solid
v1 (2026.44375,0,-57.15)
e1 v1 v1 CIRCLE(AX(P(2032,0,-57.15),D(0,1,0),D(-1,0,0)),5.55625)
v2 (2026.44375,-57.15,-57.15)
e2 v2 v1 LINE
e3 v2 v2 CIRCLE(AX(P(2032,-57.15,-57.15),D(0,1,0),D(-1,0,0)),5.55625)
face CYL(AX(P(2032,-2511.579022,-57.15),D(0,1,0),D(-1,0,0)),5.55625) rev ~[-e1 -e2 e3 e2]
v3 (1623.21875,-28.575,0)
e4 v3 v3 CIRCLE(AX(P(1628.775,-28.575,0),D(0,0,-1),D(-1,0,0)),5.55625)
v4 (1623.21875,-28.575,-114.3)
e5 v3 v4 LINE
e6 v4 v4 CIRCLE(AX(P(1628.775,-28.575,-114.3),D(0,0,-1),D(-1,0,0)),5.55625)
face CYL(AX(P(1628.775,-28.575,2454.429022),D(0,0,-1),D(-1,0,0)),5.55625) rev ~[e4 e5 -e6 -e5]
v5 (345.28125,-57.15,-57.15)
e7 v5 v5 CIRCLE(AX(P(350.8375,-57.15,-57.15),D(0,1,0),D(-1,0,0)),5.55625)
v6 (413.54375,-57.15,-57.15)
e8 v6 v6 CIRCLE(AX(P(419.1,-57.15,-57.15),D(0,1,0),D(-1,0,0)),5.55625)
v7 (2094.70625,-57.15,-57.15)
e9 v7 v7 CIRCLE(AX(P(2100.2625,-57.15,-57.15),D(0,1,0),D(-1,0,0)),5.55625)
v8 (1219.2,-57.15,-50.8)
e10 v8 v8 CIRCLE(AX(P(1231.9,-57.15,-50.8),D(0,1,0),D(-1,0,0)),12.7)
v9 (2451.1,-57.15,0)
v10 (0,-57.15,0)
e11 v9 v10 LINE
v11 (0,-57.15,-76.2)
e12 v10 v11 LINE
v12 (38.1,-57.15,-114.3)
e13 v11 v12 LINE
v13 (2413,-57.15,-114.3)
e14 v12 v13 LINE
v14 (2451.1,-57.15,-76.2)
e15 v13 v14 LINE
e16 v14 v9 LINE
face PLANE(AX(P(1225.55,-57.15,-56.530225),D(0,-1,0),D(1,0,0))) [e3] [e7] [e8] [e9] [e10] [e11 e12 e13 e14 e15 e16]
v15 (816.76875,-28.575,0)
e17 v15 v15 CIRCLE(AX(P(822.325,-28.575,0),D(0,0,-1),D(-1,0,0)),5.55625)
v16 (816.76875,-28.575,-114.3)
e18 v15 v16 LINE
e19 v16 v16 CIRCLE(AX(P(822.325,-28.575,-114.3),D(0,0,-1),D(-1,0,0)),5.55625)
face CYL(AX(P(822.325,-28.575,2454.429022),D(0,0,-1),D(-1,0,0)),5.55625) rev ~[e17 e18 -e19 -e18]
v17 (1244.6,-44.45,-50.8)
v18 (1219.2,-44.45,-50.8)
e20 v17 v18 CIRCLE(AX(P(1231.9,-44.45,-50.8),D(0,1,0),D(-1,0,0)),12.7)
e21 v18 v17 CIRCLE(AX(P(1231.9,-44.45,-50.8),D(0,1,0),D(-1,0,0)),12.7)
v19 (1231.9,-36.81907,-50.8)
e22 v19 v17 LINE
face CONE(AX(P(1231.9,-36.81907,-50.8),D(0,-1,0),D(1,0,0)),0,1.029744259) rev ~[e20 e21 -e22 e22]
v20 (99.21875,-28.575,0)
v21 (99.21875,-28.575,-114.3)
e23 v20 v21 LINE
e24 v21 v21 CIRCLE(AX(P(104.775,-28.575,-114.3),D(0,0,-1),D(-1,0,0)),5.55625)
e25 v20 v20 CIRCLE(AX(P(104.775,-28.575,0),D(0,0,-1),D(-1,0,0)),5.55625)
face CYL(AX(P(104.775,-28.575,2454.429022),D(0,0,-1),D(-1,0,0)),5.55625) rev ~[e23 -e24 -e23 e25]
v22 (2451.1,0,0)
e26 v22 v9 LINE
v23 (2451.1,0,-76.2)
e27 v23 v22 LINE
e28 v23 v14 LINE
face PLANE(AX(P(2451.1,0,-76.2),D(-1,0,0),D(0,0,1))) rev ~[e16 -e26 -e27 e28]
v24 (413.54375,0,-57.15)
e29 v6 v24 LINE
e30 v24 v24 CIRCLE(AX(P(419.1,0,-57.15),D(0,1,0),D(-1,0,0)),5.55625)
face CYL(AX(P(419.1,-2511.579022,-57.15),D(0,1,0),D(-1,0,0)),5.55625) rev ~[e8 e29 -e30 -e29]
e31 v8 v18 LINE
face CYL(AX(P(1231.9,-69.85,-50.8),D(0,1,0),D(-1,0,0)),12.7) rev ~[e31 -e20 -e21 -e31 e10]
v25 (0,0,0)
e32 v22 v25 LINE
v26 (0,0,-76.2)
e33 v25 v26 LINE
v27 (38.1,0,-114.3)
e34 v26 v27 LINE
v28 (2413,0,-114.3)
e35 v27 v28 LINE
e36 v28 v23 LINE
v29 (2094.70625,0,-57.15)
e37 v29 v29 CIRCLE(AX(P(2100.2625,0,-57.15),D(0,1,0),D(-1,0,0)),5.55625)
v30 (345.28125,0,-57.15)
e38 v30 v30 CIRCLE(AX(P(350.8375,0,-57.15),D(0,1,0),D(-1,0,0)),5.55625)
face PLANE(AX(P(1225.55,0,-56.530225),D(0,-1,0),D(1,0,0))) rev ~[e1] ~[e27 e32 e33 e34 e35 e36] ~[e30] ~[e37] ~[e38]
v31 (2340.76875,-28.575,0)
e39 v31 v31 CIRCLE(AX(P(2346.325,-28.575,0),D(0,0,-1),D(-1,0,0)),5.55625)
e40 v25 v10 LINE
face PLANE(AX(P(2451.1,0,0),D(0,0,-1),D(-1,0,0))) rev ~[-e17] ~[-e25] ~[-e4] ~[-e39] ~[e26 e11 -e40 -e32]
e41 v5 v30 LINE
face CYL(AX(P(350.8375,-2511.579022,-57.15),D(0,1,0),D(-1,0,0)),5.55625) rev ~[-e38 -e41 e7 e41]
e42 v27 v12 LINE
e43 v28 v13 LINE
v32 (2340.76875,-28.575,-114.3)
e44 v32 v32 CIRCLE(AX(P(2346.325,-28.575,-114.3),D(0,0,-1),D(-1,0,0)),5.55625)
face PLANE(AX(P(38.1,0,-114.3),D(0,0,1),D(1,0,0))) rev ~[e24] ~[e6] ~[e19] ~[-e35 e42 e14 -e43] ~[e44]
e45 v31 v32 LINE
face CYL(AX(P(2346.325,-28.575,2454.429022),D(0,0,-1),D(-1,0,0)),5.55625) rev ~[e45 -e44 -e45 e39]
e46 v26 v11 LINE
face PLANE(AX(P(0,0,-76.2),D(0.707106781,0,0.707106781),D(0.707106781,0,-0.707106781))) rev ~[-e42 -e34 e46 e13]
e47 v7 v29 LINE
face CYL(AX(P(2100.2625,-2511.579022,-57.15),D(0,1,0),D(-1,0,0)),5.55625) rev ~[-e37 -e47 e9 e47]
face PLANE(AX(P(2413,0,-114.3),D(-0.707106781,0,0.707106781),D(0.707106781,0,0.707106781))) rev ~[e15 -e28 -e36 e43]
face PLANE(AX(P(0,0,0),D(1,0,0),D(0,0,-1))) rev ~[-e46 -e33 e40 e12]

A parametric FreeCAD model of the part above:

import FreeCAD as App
import Part
import Sketcher

V = App.Vector
Q = App.Units.Quantity

doc = App.newDocument("Part")
body = doc.addObject("PartDesign::Body", "Body")

sketch1 = body.newObject("Sketcher::SketchObject", "Sketch")
sketch1.AttachmentSupport = (doc.getObject("XZ_Plane"), [""])
sketch1.MapMode = "FlatFace"
sketch1.addGeometry([
    Part.LineSegment(V(2451, 0, 0), V(0, 0, 0)),
    Part.LineSegment(V(0, 0, 0), V(0, -76, 0)),
    Part.LineSegment(V(0, -76, 0), V(38, -114, 0)),
    Part.LineSegment(V(38, -114, 0), V(2413, -114, 0)),
    Part.LineSegment(V(2413, -114, 0), V(2451, -76, 0)),
    Part.LineSegment(V(2451, -76, 0), V(2451, 0, 0)),
], False)
sketch1.addConstraint([
    Sketcher.Constraint("Coincident", 0, 2, 1, 1),
    Sketcher.Constraint("Coincident", 1, 2, 2, 1),
    Sketcher.Constraint("Coincident", 2, 2, 3, 1),
    Sketcher.Constraint("Coincident", 3, 2, 4, 1),
    Sketcher.Constraint("Coincident", 4, 2, 5, 1),
    Sketcher.Constraint("Coincident", 5, 2, 0, 1),
    Sketcher.Constraint("Horizontal", 0),
    Sketcher.Constraint("Vertical", 1),
    Sketcher.Constraint("Horizontal", 3),
    Sketcher.Constraint("Vertical", 5),
    Sketcher.Constraint("Coincident", 0, 2, -1, 1),
    Sketcher.Constraint("Perpendicular", 2, 4),
    Sketcher.Constraint("Horizontal", 1, 2, 4, 2),
    Sketcher.Constraint("Equal", 2, 4),
    Sketcher.Constraint("DistanceY", 1, 2, 1, 1, Q("3 in")),
    Sketcher.Constraint("DistanceX", 0, 2, 0, 1, Q("96.5 in")),
    Sketcher.Constraint("DistanceX", 3, 1, 3, 2, Q("93.5 in")),
])
pad1 = body.newObject("PartDesign::Pad", "Pad")
pad1.Profile = sketch1
pad1.Length = Q("2.25 in")

sketch2 = body.newObject("Sketcher::SketchObject", "Sketch001")
sketch2.AttachmentSupport = (doc.getObject("XY_Plane"), [""])
sketch2.MapMode = "FlatFace"
sketch2.addGeometry([
    Part.Circle(V(105, -29, 0), V(0, 0, 1), 6),
    Part.Circle(V(822, -29, 0), V(0, 0, 1), 6),
    Part.Circle(V(1629, -29, 0), V(0, 0, 1), 6),
    Part.Circle(V(2346, -29, 0), V(0, 0, 1), 6),
], False)
sketch2.addConstraint([
    Sketcher.Constraint("Equal", 0, 1),
    Sketcher.Constraint("Equal", 1, 2),
    Sketcher.Constraint("Equal", 2, 3),
    Sketcher.Constraint("Horizontal", 0, 3, 1, 3),
    Sketcher.Constraint("Horizontal", 1, 3, 2, 3),
    Sketcher.Constraint("Horizontal", 2, 3, 3, 3),
    Sketcher.Constraint("Diameter", 0, Q("0.4375 in")),
    Sketcher.Constraint("DistanceX", 0, 3, 2, 3, Q("60 in")),
    Sketcher.Constraint("DistanceX", 1, 3, 3, 3, Q("60 in")),
    Sketcher.Constraint("DistanceX", 0, 3, 1, 3, Q("28.25 in")),
    Sketcher.Constraint("DistanceX", -1, 1, 0, 3, Q("4.125 in")),
    Sketcher.Constraint("DistanceY", 0, 3, -1, 1, Q("1.125 in")),
])
doc.recompute()
hole = body.newObject("PartDesign::Hole", "Hole")
hole.Profile = sketch2
hole.ThreadType = "None"
hole.Diameter = Q("0.4375 in")
hole.DepthType = "ThroughAll"

sketch3 = body.newObject("Sketcher::SketchObject", "Sketch002")
sketch3.AttachmentSupport = (doc.getObject("XZ_Plane"), [""])
sketch3.MapMode = "FlatFace"
sketch3.AttachmentOffset = App.Placement(V(0, 0, 2.25 * 25.4), App.Rotation())
sketch3.addGeometry([
    Part.Circle(V(351, -57, 0), V(0, 0, 1), 6),
    Part.Circle(V(419, -57, 0), V(0, 0, 1), 6),
    Part.Circle(V(2032, -57, 0), V(0, 0, 1), 6),
    Part.Circle(V(2100, -57, 0), V(0, 0, 1), 6),
], False)
sketch3.addConstraint([
    Sketcher.Constraint("Equal", 0, 1),
    Sketcher.Constraint("Equal", 1, 2),
    Sketcher.Constraint("Equal", 2, 3),
    Sketcher.Constraint("Horizontal", 0, 3, 1, 3),
    Sketcher.Constraint("Horizontal", 1, 3, 2, 3),
    Sketcher.Constraint("Horizontal", 2, 3, 3, 3),
    Sketcher.Constraint("Diameter", 0, Q("0.4375 in")),
    Sketcher.Constraint("DistanceX", -1, 1, 2, 3, Q("80 in")),
    Sketcher.Constraint("DistanceX", -1, 1, 1, 3, Q("16.5 in")),
    Sketcher.Constraint("DistanceY", 0, 3, -1, 1, Q("2.25 in")),
    Sketcher.Constraint("DistanceX", -1, 1, 0, 3, Q("13.8125 in")),
    Sketcher.Constraint("DistanceX", -1, 1, 3, 3, Q("82.6875 in")),
])
doc.recompute()
hole2 = body.newObject("PartDesign::Hole", "Hole001")
hole2.Profile = sketch3
hole2.ThreadType = "None"
hole2.Diameter = Q("0.4375 in")
hole2.DepthType = "ThroughAll"

sketch4 = body.newObject("Sketcher::SketchObject", "Sketch003")
sketch4.AttachmentSupport = (doc.getObject("XZ_Plane"), [""])
sketch4.MapMode = "FlatFace"
sketch4.AttachmentOffset = App.Placement(V(0, 0, 2.25 * 25.4), App.Rotation())
sketch4.addGeometry(Part.Circle(V(1232, -51, 0), V(0, 0, 1), 13), False)
sketch4.addConstraint([
    Sketcher.Constraint("Diameter", 0, Q("1 in")),
    Sketcher.Constraint("DistanceY", 0, 3, -1, 1, Q("2 in")),
    Sketcher.Constraint("DistanceX", -1, 1, 0, 3, Q("48.5 in")),
])
doc.recompute()
hole3 = body.newObject("PartDesign::Hole", "Hole002")
hole3.Profile = sketch4
hole3.ThreadType = "None"
hole3.Diameter = Q("1 in")
hole3.DepthType = "Dimension"
hole3.Depth = Q("0.5 in")
hole3.DrillPoint = "Angled"
hole3.DrillPointAngle = 118

doc.recompute()
